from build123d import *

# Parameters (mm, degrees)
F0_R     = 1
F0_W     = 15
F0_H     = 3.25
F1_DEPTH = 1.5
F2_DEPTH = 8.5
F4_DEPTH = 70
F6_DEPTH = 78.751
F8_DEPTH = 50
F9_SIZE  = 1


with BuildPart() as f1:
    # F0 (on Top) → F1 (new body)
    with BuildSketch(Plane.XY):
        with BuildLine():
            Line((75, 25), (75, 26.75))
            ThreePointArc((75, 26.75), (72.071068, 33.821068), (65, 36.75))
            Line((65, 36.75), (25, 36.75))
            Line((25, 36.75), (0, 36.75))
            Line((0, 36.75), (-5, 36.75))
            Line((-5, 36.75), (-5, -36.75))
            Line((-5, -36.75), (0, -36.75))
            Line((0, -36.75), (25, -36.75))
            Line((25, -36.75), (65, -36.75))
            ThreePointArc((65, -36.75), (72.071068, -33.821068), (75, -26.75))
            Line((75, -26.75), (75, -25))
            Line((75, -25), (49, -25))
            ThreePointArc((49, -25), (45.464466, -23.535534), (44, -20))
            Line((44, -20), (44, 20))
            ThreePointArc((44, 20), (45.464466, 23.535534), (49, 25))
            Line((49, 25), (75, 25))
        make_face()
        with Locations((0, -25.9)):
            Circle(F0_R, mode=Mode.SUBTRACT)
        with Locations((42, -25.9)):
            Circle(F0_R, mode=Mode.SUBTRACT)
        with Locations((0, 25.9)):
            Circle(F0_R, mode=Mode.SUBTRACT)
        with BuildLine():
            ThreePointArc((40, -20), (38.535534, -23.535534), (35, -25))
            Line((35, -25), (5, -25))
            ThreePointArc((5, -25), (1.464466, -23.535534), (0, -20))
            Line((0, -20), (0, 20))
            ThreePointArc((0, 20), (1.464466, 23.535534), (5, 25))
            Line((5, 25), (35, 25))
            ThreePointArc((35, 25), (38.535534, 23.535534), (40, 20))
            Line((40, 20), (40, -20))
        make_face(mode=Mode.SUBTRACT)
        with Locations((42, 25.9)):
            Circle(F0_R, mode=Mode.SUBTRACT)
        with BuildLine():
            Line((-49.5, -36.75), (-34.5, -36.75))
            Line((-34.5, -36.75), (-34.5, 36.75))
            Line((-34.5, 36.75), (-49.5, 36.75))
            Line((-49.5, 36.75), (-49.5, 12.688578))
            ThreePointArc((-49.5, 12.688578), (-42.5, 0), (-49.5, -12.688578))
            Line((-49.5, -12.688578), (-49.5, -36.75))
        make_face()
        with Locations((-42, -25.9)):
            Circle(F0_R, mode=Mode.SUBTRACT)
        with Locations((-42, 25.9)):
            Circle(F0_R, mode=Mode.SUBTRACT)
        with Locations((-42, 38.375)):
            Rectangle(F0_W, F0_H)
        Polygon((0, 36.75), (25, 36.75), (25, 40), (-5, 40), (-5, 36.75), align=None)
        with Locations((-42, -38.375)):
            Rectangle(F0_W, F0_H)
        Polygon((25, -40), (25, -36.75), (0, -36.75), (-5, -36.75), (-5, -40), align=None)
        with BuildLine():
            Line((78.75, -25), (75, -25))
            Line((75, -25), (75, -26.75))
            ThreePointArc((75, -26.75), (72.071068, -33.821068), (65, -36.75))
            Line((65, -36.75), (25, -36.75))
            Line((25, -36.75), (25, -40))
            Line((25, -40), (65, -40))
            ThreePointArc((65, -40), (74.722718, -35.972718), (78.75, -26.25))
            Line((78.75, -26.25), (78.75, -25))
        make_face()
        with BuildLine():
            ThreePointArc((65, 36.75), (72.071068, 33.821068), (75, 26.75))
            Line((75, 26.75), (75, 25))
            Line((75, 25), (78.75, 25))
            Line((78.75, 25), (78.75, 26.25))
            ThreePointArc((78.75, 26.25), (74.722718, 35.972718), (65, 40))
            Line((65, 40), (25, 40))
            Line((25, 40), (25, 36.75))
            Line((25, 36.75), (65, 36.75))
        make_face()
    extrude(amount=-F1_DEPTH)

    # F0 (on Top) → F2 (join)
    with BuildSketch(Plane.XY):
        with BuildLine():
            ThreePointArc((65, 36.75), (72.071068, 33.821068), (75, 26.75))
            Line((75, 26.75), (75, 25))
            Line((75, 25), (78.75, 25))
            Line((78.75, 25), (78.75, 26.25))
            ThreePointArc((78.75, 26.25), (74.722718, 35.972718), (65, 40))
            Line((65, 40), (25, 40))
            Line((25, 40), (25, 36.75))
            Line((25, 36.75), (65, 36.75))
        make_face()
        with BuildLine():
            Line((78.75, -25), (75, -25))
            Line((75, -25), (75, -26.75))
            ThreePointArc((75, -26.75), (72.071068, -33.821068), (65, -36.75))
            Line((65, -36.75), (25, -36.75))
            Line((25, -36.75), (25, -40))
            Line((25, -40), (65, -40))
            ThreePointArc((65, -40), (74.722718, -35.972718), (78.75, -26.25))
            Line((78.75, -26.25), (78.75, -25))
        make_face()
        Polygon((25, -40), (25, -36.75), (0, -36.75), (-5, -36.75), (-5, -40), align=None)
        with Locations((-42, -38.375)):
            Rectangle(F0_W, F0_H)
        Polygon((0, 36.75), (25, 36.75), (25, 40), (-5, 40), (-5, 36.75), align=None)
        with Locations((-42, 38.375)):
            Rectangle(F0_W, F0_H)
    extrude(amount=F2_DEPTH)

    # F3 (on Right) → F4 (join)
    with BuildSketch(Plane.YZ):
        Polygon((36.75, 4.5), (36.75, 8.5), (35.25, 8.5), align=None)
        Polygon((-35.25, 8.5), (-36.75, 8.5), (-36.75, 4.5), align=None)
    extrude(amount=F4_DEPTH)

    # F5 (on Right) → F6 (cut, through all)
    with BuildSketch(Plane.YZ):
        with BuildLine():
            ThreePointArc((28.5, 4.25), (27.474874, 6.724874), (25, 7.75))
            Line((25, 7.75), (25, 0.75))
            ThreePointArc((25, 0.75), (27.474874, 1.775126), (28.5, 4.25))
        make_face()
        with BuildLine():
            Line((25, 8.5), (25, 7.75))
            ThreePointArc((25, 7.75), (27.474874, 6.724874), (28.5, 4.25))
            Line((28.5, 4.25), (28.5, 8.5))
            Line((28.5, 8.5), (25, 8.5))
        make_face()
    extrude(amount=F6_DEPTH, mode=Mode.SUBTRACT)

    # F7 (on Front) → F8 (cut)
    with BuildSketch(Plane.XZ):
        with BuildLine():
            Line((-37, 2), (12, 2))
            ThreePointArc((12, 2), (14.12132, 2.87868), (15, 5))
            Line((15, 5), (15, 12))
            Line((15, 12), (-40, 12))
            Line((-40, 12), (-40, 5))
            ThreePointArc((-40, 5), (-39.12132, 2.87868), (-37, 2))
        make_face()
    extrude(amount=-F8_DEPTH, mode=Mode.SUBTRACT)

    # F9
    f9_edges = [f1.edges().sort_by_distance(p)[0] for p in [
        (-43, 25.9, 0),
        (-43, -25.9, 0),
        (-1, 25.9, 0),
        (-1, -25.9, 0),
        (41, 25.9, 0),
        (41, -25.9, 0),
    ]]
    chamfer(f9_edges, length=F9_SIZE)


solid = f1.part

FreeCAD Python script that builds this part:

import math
import FreeCAD as App
import Part
import Sketcher
from FreeCAD import Vector
Q = App.Units.Quantity


def edges_at(feature, points):
    """Names of the edges that pass closest to the given points."""
    edges = feature.Shape.Edges
    near = lambda p: min(range(len(edges)), key=lambda i: edges[i].distToShape(Part.Vertex(*p))[0])
    return sorted({f"Edge{near(p) + 1}" for p in points})

doc = App.newDocument("Part")
body = doc.addObject("PartDesign::Body", "Body")
body.AllowCompound = True

sketch1 = body.newObject("Sketcher::SketchObject", "Sketch")
sketch1.AttachmentSupport = (doc.getObject("XY_Plane"), [""])
sketch1.MapMode = "FlatFace"
sketch1.addGeometry([
    Part.LineSegment(Vector(-5, 40, 0), Vector(-5, -40, 0)),
    Part.LineSegment(Vector(-5, -40, 0), Vector(65, -40, 0)),
    Part.ArcOfCircle(Part.Circle(Vector(64.999999, -26.249999, 0), Vector(0, 0, 1), 13.750001), math.radians(-89.999997), math.radians(-0.000003)),
    Part.LineSegment(Vector(78.75, -26.25, 0), Vector(78.75, -25, 0)),
    Part.LineSegment(Vector(78.75, -25, 0), Vector(49, -25, 0)),
    Part.ArcOfCircle(Part.Circle(Vector(49, -20, 0), Vector(0, 0, 1), 5), math.radians(179.999996), math.radians(270.000004)),
    Part.LineSegment(Vector(44, -20, 0), Vector(44, 20, 0)),
    Part.ArcOfCircle(Part.Circle(Vector(49, 20, 0), Vector(0, 0, 1), 5), math.radians(89.999996), math.radians(180.000004)),
    Part.LineSegment(Vector(49, 25, 0), Vector(78.75, 25, 0)),
    Part.LineSegment(Vector(78.75, 25, 0), Vector(78.75, 26.25, 0)),
    Part.ArcOfCircle(Part.Circle(Vector(64.999999, 26.249999, 0), Vector(0, 0, 1), 13.750001), math.radians(0.000003), math.radians(89.999997)),
    Part.LineSegment(Vector(65, 40, 0), Vector(-5, 40, 0)),
    Part.Circle(Vector(0, -25.9, 0), Vector(0, 0, 1), 1),
    Part.Circle(Vector(42, -25.9, 0), Vector(0, 0, 1), 1),
    Part.LineSegment(Vector(40, 20, 0), Vector(40, -20, 0)),
    Part.ArcOfCircle(Part.Circle(Vector(35, -20, 0), Vector(0, 0, 1), 5), math.radians(-90.000004), math.radians(0.000004)),
    Part.LineSegment(Vector(35, -25, 0), Vector(5, -25, 0)),
    Part.ArcOfCircle(Part.Circle(Vector(5, -20, 0), Vector(0, 0, 1), 5), math.radians(179.999996), math.radians(270.000004)),
    Part.LineSegment(Vector(0, -20, 0), Vector(0, 20, 0)),
    Part.ArcOfCircle(Part.Circle(Vector(5, 20, 0), Vector(0, 0, 1), 5), math.radians(89.999996), math.radians(180.000004)),
    Part.LineSegment(Vector(5, 25, 0), Vector(35, 25, 0)),
    Part.ArcOfCircle(Part.Circle(Vector(35, 20, 0), Vector(0, 0, 1), 5), math.radians(-0.000004), math.radians(90.000004)),
    Part.Circle(Vector(0, 25.9, 0), Vector(0, 0, 1), 1),
    Part.Circle(Vector(42, 25.9, 0), Vector(0, 0, 1), 1),
    Part.LineSegment(Vector(-34.5, 40, 0), Vector(-49.5, 40, 0)),
    Part.LineSegment(Vector(-49.5, 40, 0), Vector(-49.5, 12.688578, 0)),
    Part.ArcOfCircle(Part.Circle(Vector(-57.500001, 0, 0), Vector(0, 0, 1), 15.000001), math.radians(-57.769046), math.radians(57.769046)),
    Part.LineSegment(Vector(-49.5, -12.688578, 0), Vector(-49.5, -40, 0)),
    Part.LineSegment(Vector(-49.5, -40, 0), Vector(-34.5, -40, 0)),
    Part.LineSegment(Vector(-34.5, -40, 0), Vector(-34.5, 40, 0)),
    Part.Circle(Vector(-42, -25.9, 0), Vector(0, 0, 1), 1),
    Part.Circle(Vector(-42, 25.9, 0), Vector(0, 0, 1), 1),
], False)
sketch1.addConstraint([
    Sketcher.Constraint("Coincident", 0, 2, 1, 1),
    Sketcher.Constraint("Tangent", 1, 2, 2, 1),
    Sketcher.Constraint("Tangent", 2, 2, 3, 1),
    Sketcher.Constraint("Coincident", 3, 2, 4, 1),
    Sketcher.Constraint("Tangent", 4, 2, 5, 2),
    Sketcher.Constraint("Tangent", 5, 1, 6, 1),
    Sketcher.Constraint("Tangent", 6, 2, 7, 2),
    Sketcher.Constraint("Tangent", 7, 1, 8, 1),
    Sketcher.Constraint("Coincident", 8, 2, 9, 1),
    Sketcher.Constraint("Tangent", 9, 2, 10, 1),
    Sketcher.Constraint("Tangent", 10, 2, 11, 1),
    Sketcher.Constraint("Coincident", 11, 2, 0, 1),
    Sketcher.Constraint("Tangent", 14, 2, 15, 2),
    Sketcher.Constraint("Tangent", 15, 1, 16, 1),
    Sketcher.Constraint("Tangent", 16, 2, 17, 2),
    Sketcher.Constraint("Tangent", 17, 1, 18, 1),
    Sketcher.Constraint("Tangent", 18, 2, 19, 2),
    Sketcher.Constraint("Tangent", 19, 1, 20, 1),
    Sketcher.Constraint("Tangent", 20, 2, 21, 2),
    Sketcher.Constraint("Tangent", 21, 1, 14, 1),
    Sketcher.Constraint("Coincident", 24, 2, 25, 1),
    Sketcher.Constraint("Coincident", 25, 2, 26, 2),
    Sketcher.Constraint("Coincident", 26, 1, 27, 1),
    Sketcher.Constraint("Coincident", 27, 2, 28, 1),
    Sketcher.Constraint("Coincident", 28, 2, 29, 1),
    Sketcher.Constraint("Coincident", 29, 2, 24, 1),
    Sketcher.Constraint("Vertical", 0),
    Sketcher.Constraint("Horizontal", 1),
    Sketcher.Constraint("Vertical", 3),
    Sketcher.Constraint("Horizontal", 4),
    Sketcher.Constraint("Vertical", 6),
    Sketcher.Constraint("Horizontal", 8),
    Sketcher.Constraint("Vertical", 9),
    Sketcher.Constraint("Horizontal", 11),
    Sketcher.Constraint("Vertical", 14),
    Sketcher.Constraint("Horizontal", 16),
    Sketcher.Constraint("Vertical", 18),
    Sketcher.Constraint("Horizontal", 20),
    Sketcher.Constraint("Horizontal", 24),
    Sketcher.Constraint("Vertical", 25),
    Sketcher.Constraint("Vertical", 27),
    Sketcher.Constraint("Horizontal", 28),
    Sketcher.Constraint("Vertical", 29),
    Sketcher.Constraint("Equal", 5, 7),
    Sketcher.Constraint("Equal", 2, 10),
    Sketcher.Constraint("Equal", 12, 13),
    Sketcher.Constraint("Equal", 7, 15),
    Sketcher.Constraint("Equal", 15, 17),
    Sketcher.Constraint("Equal", 17, 19),
    Sketcher.Constraint("Equal", 19, 21),
    Sketcher.Constraint("Equal", 13, 22),
    Sketcher.Constraint("Equal", 22, 23),
    Sketcher.Constraint("Equal", 23, 30),
    Sketcher.Constraint("Equal", 30, 31),
    Sketcher.Constraint("Symmetric", 12, 3, 22, 3, -1, 1),
    Sketcher.Constraint("Symmetric", 23, 3, 30, 3, -1, 1),
    Sketcher.Constraint("Symmetric", 13, 3, 31, 3, -1, 1),
    Sketcher.Constraint("Symmetric", 17, 1, 18, 2, -1, 1),
    Sketcher.Constraint("Symmetric", 13, 3, 30, 3, -2),
    Sketcher.Constraint("Symmetric", 2, 3, 10, 3, -1),
    Sketcher.Constraint("Symmetric", 25, 2, 26, 1, -1),
    Sketcher.Constraint("PointOnObject", 12, 3, -2),
    Sketcher.Constraint("Horizontal", 12, 3, 13, 3),
    Sketcher.Constraint("Horizontal", 5, 3, 15, 3),
    Sketcher.Constraint("Horizontal", 7, 3, 19, 3),
    Sketcher.Constraint("Horizontal", 11, 2, 24, 2),
    Sketcher.Constraint("Horizontal", 1, 2, 27, 2),
    Sketcher.Constraint("Diameter", 12, Q("2 mm")),
    Sketcher.Constraint("Radius", 5, Q("5 mm")),
    Sketcher.Constraint("Radius", 26, Q("15.000001 mm")),
    Sketcher.Constraint("DistanceX", 1, 1, 1, 2, Q("70 mm")),
    Sketcher.Constraint("DistanceX", 16, 2, 16, 1, Q("30 mm")),
    Sketcher.Constraint("DistanceX", 24, 2, 24, 1, Q("15 mm")),
    Sketcher.Constraint("DistanceY", 0, 2, 0, 1, Q("80 mm")),
    Sketcher.Constraint("DistanceY", 6, 1, 6, 2, Q("40 mm")),
    Sketcher.Constraint("Radius", 2, Q("13.750001 mm")),
    Sketcher.Constraint("DistanceX", -1, 1, 2, 3, Q("64.999999 mm")),
    Sketcher.Constraint("DistanceX", -1, 1, 5, 3, Q("49 mm")),
    Sketcher.Constraint("DistanceX", -1, 1, 13, 3, Q("42 mm")),
    Sketcher.Constraint("DistanceX", 26, 3, 24, 2, Q("8.000001 mm")),
    Sketcher.Constraint("DistanceY", 12, 3, -1, 1, Q("25.9 mm")),
    Sketcher.Constraint("DistanceX", 26, 3, -1, 1, Q("57.500001 mm")),
])
pad1 = body.newObject("PartDesign::Pad", "Pad")
pad1.Profile = sketch1
pad1.Length = 1.5
pad1.Reversed = True

sketch2 = body.newObject("Sketcher::SketchObject", "Sketch001")
sketch2.AttachmentSupport = (doc.getObject("XY_Plane"), [""])
sketch2.MapMode = "FlatFace"
sketch2.addGeometry([
    Part.ArcOfCircle(Part.Circle(Vector(65.000001, 26.750001, 0), Vector(0, 0, 1), 9.999999), math.radians(-0.000004), math.radians(90.000004)),
    Part.LineSegment(Vector(75, 26.75, 0), Vector(75, 25, 0)),
    Part.LineSegment(Vector(75, 25, 0), Vector(78.75, 25, 0)),
    Part.LineSegment(Vector(78.75, 25, 0), Vector(78.75, 26.25, 0)),
    Part.ArcOfCircle(Part.Circle(Vector(64.999999, 26.249999, 0), Vector(0, 0, 1), 13.750001), math.radians(0.000003), math.radians(89.999997)),
    Part.LineSegment(Vector(65, 40, 0), Vector(-5, 40, 0)),
    Part.LineSegment(Vector(-5, 40, 0), Vector(-5, 36.75, 0)),
    Part.LineSegment(Vector(-5, 36.75, 0), Vector(65, 36.75, 0)),
    Part.LineSegment(Vector(78.75, -25, 0), Vector(75, -25, 0)),
    Part.LineSegment(Vector(75, -25, 0), Vector(75, -26.75, 0)),
    Part.ArcOfCircle(Part.Circle(Vector(65.000001, -26.750001, 0), Vector(0, 0, 1), 9.999999), math.radians(-90.000004), math.radians(0.000004)),
    Part.LineSegment(Vector(65, -36.75, 0), Vector(-5, -36.75, 0)),
    Part.LineSegment(Vector(-5, -36.75, 0), Vector(-5, -40, 0)),
    Part.LineSegment(Vector(-5, -40, 0), Vector(65, -40, 0)),
    Part.ArcOfCircle(Part.Circle(Vector(64.999999, -26.249999, 0), Vector(0, 0, 1), 13.750001), math.radians(-89.999997), math.radians(-0.000003)),
    Part.LineSegment(Vector(78.75, -26.25, 0), Vector(78.75, -25, 0)),
    Part.LineSegment(Vector(-49.5, -36.75, 0), Vector(-49.5, -40, 0)),
    Part.LineSegment(Vector(-49.5, -40, 0), Vector(-34.5, -40, 0)),
    Part.LineSegment(Vector(-34.5, -40, 0), Vector(-34.5, -36.75, 0)),
    Part.LineSegment(Vector(-34.5, -36.75, 0), Vector(-49.5, -36.75, 0)),
    Part.LineSegment(Vector(-49.5, 40, 0), Vector(-49.5, 36.75, 0)),
    Part.LineSegment(Vector(-49.5, 36.75, 0), Vector(-34.5, 36.75, 0)),
    Part.LineSegment(Vector(-34.5, 36.75, 0), Vector(-34.5, 40, 0)),
    Part.LineSegment(Vector(-34.5, 40, 0), Vector(-49.5, 40, 0)),
], False)
sketch2.addConstraint([
    Sketcher.Constraint("Tangent", 0, 1, 1, 1),
    Sketcher.Constraint("Coincident", 1, 2, 2, 1),
    Sketcher.Constraint("Coincident", 2, 2, 3, 1),
    Sketcher.Constraint("Tangent", 3, 2, 4, 1),
    Sketcher.Constraint("Tangent", 4, 2, 5, 1),
    Sketcher.Constraint("Coincident", 5, 2, 6, 1),
    Sketcher.Constraint("Coincident", 6, 2, 7, 1),
    Sketcher.Constraint("Tangent", 7, 2, 0, 2),
    Sketcher.Constraint("Coincident", 8, 2, 9, 1),
    Sketcher.Constraint("Tangent", 9, 2, 10, 2),
    Sketcher.Constraint("Tangent", 10, 1, 11, 1),
    Sketcher.Constraint("Coincident", 11, 2, 12, 1),
    Sketcher.Constraint("Coincident", 12, 2, 13, 1),
    Sketcher.Constraint("Tangent", 13, 2, 14, 1),
    Sketcher.Constraint("Tangent", 14, 2, 15, 1),
    Sketcher.Constraint("Coincident", 15, 2, 8, 1),
    Sketcher.Constraint("Coincident", 16, 2, 17, 1),
    Sketcher.Constraint("Coincident", 17, 2, 18, 1),
    Sketcher.Constraint("Coincident", 18, 2, 19, 1),
    Sketcher.Constraint("Coincident", 19, 2, 16, 1),
    Sketcher.Constraint("Coincident", 20, 2, 21, 1),
    Sketcher.Constraint("Coincident", 21, 2, 22, 1),
    Sketcher.Constraint("Coincident", 22, 2, 23, 1),
    Sketcher.Constraint("Coincident", 23, 2, 20, 1),
    Sketcher.Constraint("Vertical", 1),
    Sketcher.Constraint("Horizontal", 2),
    Sketcher.Constraint("Vertical", 3),
    Sketcher.Constraint("Horizontal", 5),
    Sketcher.Constraint("Vertical", 6),
    Sketcher.Constraint("Horizontal", 7),
    Sketcher.Constraint("Horizontal", 8),
    Sketcher.Constraint("Vertical", 9),
    Sketcher.Constraint("Horizontal", 11),
    Sketcher.Constraint("Vertical", 12),
    Sketcher.Constraint("Horizontal", 13),
    Sketcher.Constraint("Vertical", 15),
    Sketcher.Constraint("Vertical", 16),
    Sketcher.Constraint("Horizontal", 17),
    Sketcher.Constraint("Vertical", 18),
    Sketcher.Constraint("Horizontal", 19),
    Sketcher.Constraint("Vertical", 20),
    Sketcher.Constraint("Horizontal", 21),
    Sketcher.Constraint("Vertical", 22),
    Sketcher.Constraint("Horizontal", 23),
    Sketcher.Constraint("Equal", 0, 10),
    Sketcher.Constraint("Equal", 4, 14),
    Sketcher.Constraint("Symmetric", 0, 3, 10, 3, -1),
    Sketcher.Constraint("Symmetric", 4, 3, 14, 3, -1),
    Sketcher.Constraint("Symmetric", 19, 2, 20, 2, -1),
    Sketcher.Constraint("Symmetric", 17, 2, 22, 2, -1),
    Sketcher.Constraint("Horizontal", 13, 2, 16, 2),
    Sketcher.Constraint("Horizontal", 11, 2, 18, 2),
    Sketcher.Constraint("Vertical", 0, 3, 4, 3),
    Sketcher.Constraint("Vertical", 6, 2, 11, 2),
    Sketcher.Constraint("Equal", 1, 9),
    Sketcher.Constraint("Radius", 0, Q("9.999999 mm")),
    Sketcher.Constraint("DistanceX", 5, 2, 5, 1, Q("70 mm")),
    Sketcher.Constraint("DistanceX", 17, 1, 17, 2, Q("15 mm")),
    Sketcher.Constraint("Radius", 4, Q("13.750001 mm")),
    Sketcher.Constraint("DistanceX", -1, 1, 0, 3, Q("65.000001 mm")),
    Sketcher.Constraint("DistanceY", -1, 1, 1, 2, Q("25 mm")),
    Sketcher.Constraint("DistanceY", -1, 1, 4, 2, Q("40 mm")),
    Sketcher.Constraint("DistanceY", 10, 3, 4, 3, Q("53 mm")),
    Sketcher.Constraint("DistanceX", 16, 2, -1, 1, Q("49.5 mm")),
])
pad2 = body.newObject("PartDesign::Pad", "Pad001")
pad2.Profile = sketch2
pad2.Length = 8.5

sketch3 = body.newObject("Sketcher::SketchObject", "Sketch002")
sketch3.AttachmentSupport = (doc.getObject("YZ_Plane"), [""])
sketch3.MapMode = "FlatFace"
sketch3.addGeometry([
    Part.LineSegment(Vector(36.75, 4.5, 0), Vector(36.75, 8.5, 0)),
    Part.LineSegment(Vector(36.75, 8.5, 0), Vector(35.25, 8.5, 0)),
    Part.LineSegment(Vector(35.25, 8.5, 0), Vector(36.75, 4.5, 0)),
    Part.LineSegment(Vector(-35.25, 8.5, 0), Vector(-36.75, 8.5, 0)),
    Part.LineSegment(Vector(-36.75, 8.5, 0), Vector(-36.75, 4.5, 0)),
    Part.LineSegment(Vector(-36.75, 4.5, 0), Vector(-35.25, 8.5, 0)),
], False)
sketch3.addConstraint([
    Sketcher.Constraint("Coincident", 0, 2, 1, 1),
    Sketcher.Constraint("Coincident", 1, 2, 2, 1),
    Sketcher.Constraint("Coincident", 2, 2, 0, 1),
    Sketcher.Constraint("Coincident", 3, 2, 4, 1),
    Sketcher.Constraint("Coincident", 4, 2, 5, 1),
    Sketcher.Constraint("Coincident", 5, 2, 3, 1),
    Sketcher.Constraint("Vertical", 0),
    Sketcher.Constraint("Horizontal", 1),
    Sketcher.Constraint("Horizontal", 3),
    Sketcher.Constraint("Vertical", 4),
    Sketcher.Constraint("Symmetric", 0, 2, 3, 2, -2),
    Sketcher.Constraint("Horizontal", 2, 2, 4, 2),
    Sketcher.Constraint("Equal", 1, 3),
    Sketcher.Constraint("DistanceY", 0, 1, 0, 2, Q("4 mm")),
    Sketcher.Constraint("DistanceX", 1, 2, 1, 1, Q("1.5 mm")),
    Sketcher.Constraint("DistanceX", 3, 2, 1, 2, Q("72 mm")),
    Sketcher.Constraint("DistanceY", -1, 1, 0, 2, Q("8.5 mm")),
])
pad3 = body.newObject("PartDesign::Pad", "Pad002")
pad3.Profile = sketch3
pad3.Length = 70

sketch4 = body.newObject("Sketcher::SketchObject", "Sketch003")
sketch4.AttachmentSupport = (doc.getObject("YZ_Plane"), [""])
sketch4.MapMode = "FlatFace"
sketch4.addGeometry([
    Part.ArcOfCircle(Part.Circle(Vector(25.000001, 4.249999, 0), Vector(0, 0, 1), 3.499999), math.radians(-90.000015), math.radians(0.000015)),
    Part.LineSegment(Vector(28.5, 4.25, 0), Vector(28.5, 8.5, 0)),
    Part.LineSegment(Vector(28.5, 8.5, 0), Vector(25, 8.5, 0)),
    Part.LineSegment(Vector(25, 8.5, 0), Vector(25, 0.75, 0)),
], False)
sketch4.addConstraint([
    Sketcher.Constraint("Tangent", 0, 2, 1, 1),
    Sketcher.Constraint("Coincident", 1, 2, 2, 1),
    Sketcher.Constraint("Coincident", 2, 2, 3, 1),
    Sketcher.Constraint("Coincident", 3, 2, 0, 1),
    Sketcher.Constraint("Vertical", 1),
    Sketcher.Constraint("Horizontal", 2),
    Sketcher.Constraint("Vertical", 3),
    Sketcher.Constraint("Vertical", 0, 3, 2, 2),
    Sketcher.Constraint("Radius", 0, Q("3.499999 mm")),
    Sketcher.Constraint("DistanceX", -1, 1, 0, 3, Q("25.000001 mm")),
    Sketcher.Constraint("DistanceY", 1, 1, 1, 2, Q("4.25 mm")),
    Sketcher.Constraint("DistanceY", -1, 1, 1, 2, Q("8.5 mm")),
])
pocket1 = body.newObject("PartDesign::Pocket", "Pocket")
pocket1.Profile = sketch4
pocket1.Type = "ThroughAll"
pocket1.Reversed = True

sketch5 = body.newObject("Sketcher::SketchObject", "Sketch004")
sketch5.AttachmentSupport = (doc.getObject("XZ_Plane"), [""])
sketch5.MapMode = "FlatFace"
sketch5.addGeometry([
    Part.LineSegment(Vector(-37, 2, 0), Vector(12, 2, 0)),
    Part.ArcOfCircle(Part.Circle(Vector(11.999999, 5.000001, 0), Vector(0, 0, 1), 3.000001), math.radians(-89.999978), math.radians(-0.000022)),
    Part.LineSegment(Vector(15, 5, 0), Vector(15, 12, 0)),
    Part.LineSegment(Vector(15, 12, 0), Vector(-40, 12, 0)),
    Part.LineSegment(Vector(-40, 12, 0), Vector(-40, 5, 0)),
    Part.ArcOfCircle(Part.Circle(Vector(-36.999999, 5.000001, 0), Vector(0, 0, 1), 3.000001), math.radians(-179.999978), math.radians(-90.000022)),
], False)
sketch5.addConstraint([
    Sketcher.Constraint("Tangent", 0, 2, 1, 1),
    Sketcher.Constraint("Tangent", 1, 2, 2, 1),
    Sketcher.Constraint("Coincident", 2, 2, 3, 1),
    Sketcher.Constraint("Coincident", 3, 2, 4, 1),
    Sketcher.Constraint("Tangent", 4, 2, 5, 1),
    Sketcher.Constraint("Tangent", 5, 2, 0, 1),
    Sketcher.Constraint("Horizontal", 0),
    Sketcher.Constraint("Vertical", 2),
    Sketcher.Constraint("Horizontal", 3),
    Sketcher.Constraint("Vertical", 4),
    Sketcher.Constraint("Equal", 1, 5),
    Sketcher.Constraint("Radius", 1, Q("3.000001 mm")),
    Sketcher.Constraint("DistanceX", 0, 1, 0, 2, Q("49 mm")),
    Sketcher.Constraint("DistanceY", 2, 1, 2, 2, Q("7 mm")),
    Sketcher.Constraint("DistanceX", -1, 1, 1, 3, Q("11.999999 mm")),
    Sketcher.Constraint("DistanceY", -1, 1, 1, 3, Q("5.000001 mm")),
])
pocket2 = body.newObject("PartDesign::Pocket", "Pocket001")
pocket2.Profile = sketch5
pocket2.Length = 50
doc.recompute()

chamfer = body.newObject("PartDesign::Chamfer", "Chamfer")
chamfer.Base = (pocket2, edges_at(pocket2, [
    (-43, 25.9, 0),
    (-43, -25.9, 0),
    (-1, 25.9, 0),
    (-1, -25.9, 0),
    (41, 25.9, 0),
    (41, -25.9, 0),
]))
chamfer.Size = 1

doc.recompute()
